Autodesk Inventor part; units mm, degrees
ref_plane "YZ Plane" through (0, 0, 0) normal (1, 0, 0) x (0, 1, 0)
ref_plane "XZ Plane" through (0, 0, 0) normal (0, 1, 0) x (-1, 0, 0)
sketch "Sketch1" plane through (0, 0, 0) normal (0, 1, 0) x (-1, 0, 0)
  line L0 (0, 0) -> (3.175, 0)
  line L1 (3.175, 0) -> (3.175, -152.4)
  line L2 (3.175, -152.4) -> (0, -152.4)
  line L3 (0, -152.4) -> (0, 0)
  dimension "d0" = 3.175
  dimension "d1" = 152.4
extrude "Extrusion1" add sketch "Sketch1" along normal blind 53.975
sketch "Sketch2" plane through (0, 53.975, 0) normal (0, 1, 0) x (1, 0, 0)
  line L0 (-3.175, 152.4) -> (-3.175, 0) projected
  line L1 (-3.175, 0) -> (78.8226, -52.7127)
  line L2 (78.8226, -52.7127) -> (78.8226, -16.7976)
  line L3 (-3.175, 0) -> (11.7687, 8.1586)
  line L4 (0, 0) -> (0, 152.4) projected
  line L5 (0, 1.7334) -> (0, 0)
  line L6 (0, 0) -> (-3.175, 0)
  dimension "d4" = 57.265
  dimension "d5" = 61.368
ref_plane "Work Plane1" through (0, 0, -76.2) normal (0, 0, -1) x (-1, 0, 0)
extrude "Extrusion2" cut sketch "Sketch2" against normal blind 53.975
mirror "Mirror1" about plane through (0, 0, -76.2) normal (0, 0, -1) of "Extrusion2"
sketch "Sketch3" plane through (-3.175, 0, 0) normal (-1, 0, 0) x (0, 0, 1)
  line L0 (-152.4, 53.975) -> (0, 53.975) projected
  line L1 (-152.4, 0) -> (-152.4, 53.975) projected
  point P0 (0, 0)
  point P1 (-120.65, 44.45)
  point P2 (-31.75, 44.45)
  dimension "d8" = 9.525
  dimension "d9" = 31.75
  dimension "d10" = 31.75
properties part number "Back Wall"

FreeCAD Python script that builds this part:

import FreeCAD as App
import Part
import Sketcher
Q = App.Units.Quantity


def add_polygon(sketch, points):
    """Adds a closed chain of lines whose ends are joined by coincident constraints."""
    first, n = sketch.GeometryCount, len(points)
    for a, b in zip(points, points[1:] + points[:1]):
        sketch.addGeometry(Part.LineSegment(App.Vector(*a, 0), App.Vector(*b, 0)), False)
    for i in range(n):
        sketch.addConstraint(Sketcher.Constraint("Coincident", first + i, 2, first + (i + 1) % n, 1))

doc = App.newDocument("Part")
body = doc.addObject("PartDesign::Body", "Body")

sketch1 = doc.addObject("Sketcher::SketchObject", "Sketch")
body.addObject(sketch1)
sketch1.AttachmentSupport = (doc.XZ_Plane, [""])
sketch1.MapMode = "FlatFace"
add_polygon(sketch1, [(-3.2, 0), (0, 0), (0, -152.4), (-3.2, -152.4)])
sketch1.addConstraint(Sketcher.Constraint("Horizontal", 0))
sketch1.addConstraint(Sketcher.Constraint("Vertical", 1))
sketch1.addConstraint(Sketcher.Constraint("Horizontal", 2))
sketch1.addConstraint(Sketcher.Constraint("Vertical", 3))
sketch1.addConstraint(Sketcher.Constraint("Coincident", 0, 2, -1, 1))
sketch1.addConstraint(Sketcher.Constraint("DistanceY", 1, 2, 1, 1, Q("6 in")))
sketch1.addConstraint(Sketcher.Constraint("DistanceX", 0, 1, 0, 2, Q("0.125 in")))
pad1 = doc.addObject("PartDesign::Pad", "Pad")
body.addObject(pad1)
pad1.Profile = sketch1
pad1.Length = Q("2.125 in")
pad1.Reversed = True

sketch2 = doc.addObject("Sketcher::SketchObject", "Sketch001")
body.addObject(sketch2)
sketch2.AttachmentSupport = (doc.XZ_Plane, [""])
sketch2.MapMode = "FlatFace"
sketch2.AttachmentOffset = App.Placement(App.Vector(0, 0, -2.125 * 25.4), App.Rotation())
add_polygon(sketch2, [(0, -1.7), (-3.2, 0), (0, 0)])
sketch2.addConstraint(Sketcher.Constraint("Horizontal", 1))
sketch2.addConstraint(Sketcher.Constraint("Vertical", 2))
sketch2.addConstraint(Sketcher.Constraint("Coincident", 1, 2, -1, 1))
sketch2.addConstraint(Sketcher.Constraint("DistanceX", 1, 1, 1, 2, Q("0.125 in")))
sketch2.addConstraint(Sketcher.Constraint("DistanceY", 2, 2, 2, 1, 1.7334))
pocket1 = doc.addObject("PartDesign::Pocket", "Pocket")
body.addObject(pocket1)
pocket1.Profile = sketch2
pocket1.Length = Q("2.125 in")
pocket1.Reversed = True
doc.recompute()

datumplane = doc.addObject("PartDesign::Plane", "DatumPlane")
body.addObject(datumplane)
datumplane.AttachmentSupport = (doc.XY_Plane, [""])
datumplane.MapMode = "FlatFace"
datumplane.AttachmentOffset = App.Placement(App.Vector(0, 0, -3 * 25.4), App.Rotation())
mirrored = doc.addObject("PartDesign::Mirrored", "Mirrored")
body.addObject(mirrored)
mirrored.Originals = [pocket1]
mirrored.MirrorPlane = (datumplane, [""])
body.Tip = mirrored

doc.recompute()
